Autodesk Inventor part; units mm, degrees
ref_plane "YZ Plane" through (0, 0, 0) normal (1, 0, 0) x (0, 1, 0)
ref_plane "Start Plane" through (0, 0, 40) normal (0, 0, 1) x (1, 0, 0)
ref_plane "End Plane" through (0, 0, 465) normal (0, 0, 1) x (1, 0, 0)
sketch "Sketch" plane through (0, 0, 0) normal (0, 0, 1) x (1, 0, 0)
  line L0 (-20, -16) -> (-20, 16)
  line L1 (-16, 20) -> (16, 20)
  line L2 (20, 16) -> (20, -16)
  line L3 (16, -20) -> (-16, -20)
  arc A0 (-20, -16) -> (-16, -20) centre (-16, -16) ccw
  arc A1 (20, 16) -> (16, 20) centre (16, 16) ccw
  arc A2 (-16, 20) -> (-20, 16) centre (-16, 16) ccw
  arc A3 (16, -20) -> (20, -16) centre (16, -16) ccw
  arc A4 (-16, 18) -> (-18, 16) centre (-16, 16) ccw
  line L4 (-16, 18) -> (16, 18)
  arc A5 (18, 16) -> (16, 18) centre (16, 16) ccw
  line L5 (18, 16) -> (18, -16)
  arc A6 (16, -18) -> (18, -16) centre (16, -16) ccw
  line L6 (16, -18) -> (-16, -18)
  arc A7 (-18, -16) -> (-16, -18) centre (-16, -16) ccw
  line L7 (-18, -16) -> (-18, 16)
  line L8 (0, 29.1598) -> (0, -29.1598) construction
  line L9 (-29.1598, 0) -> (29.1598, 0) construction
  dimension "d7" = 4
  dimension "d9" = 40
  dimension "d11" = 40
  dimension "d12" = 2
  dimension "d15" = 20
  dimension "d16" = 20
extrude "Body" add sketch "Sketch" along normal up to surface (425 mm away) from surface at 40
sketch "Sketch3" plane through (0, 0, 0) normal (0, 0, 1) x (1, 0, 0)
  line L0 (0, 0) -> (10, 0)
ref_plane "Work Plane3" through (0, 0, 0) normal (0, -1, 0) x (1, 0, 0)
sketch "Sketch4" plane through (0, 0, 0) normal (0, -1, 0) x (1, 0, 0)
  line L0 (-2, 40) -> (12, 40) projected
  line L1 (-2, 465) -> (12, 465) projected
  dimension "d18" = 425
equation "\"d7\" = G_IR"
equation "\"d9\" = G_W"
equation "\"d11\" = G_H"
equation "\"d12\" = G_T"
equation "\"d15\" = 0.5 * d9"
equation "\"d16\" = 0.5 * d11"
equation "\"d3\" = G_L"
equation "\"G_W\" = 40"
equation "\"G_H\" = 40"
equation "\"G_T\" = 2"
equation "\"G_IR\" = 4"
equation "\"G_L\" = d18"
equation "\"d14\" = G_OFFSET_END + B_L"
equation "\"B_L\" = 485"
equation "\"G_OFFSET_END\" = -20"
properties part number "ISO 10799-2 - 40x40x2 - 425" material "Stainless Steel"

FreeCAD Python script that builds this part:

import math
import FreeCAD as App
import Part
import Sketcher
from FreeCAD import Vector

doc = App.newDocument("Part")
params = doc.addObject("Spreadsheet::Sheet", "Params")
for row, (alias, value) in enumerate([
    ("sketch1_radius", "4 mm"),
    ("sketch1_radius2", "2 mm"),
    ("pad1_length", "425 mm"),
], start=1):
    params.set(f"A{row}", alias)
    params.set(f"B{row}", "=" + value)
    params.setAlias(f"B{row}", alias)

body = doc.addObject("PartDesign::Body", "Body")

sketch1 = body.newObject("Sketcher::SketchObject", "Sketch")
sketch1.AttachmentSupport = (doc.getObject("XY_Plane"), [""])
sketch1.MapMode = "FlatFace"
sketch1.AttachmentOffset = App.Placement(Vector(0, 0, 40), App.Rotation())
sketch1.addGeometry([
    Part.LineSegment(Vector(-20, 16, 0), Vector(-20, -16, 0)),
    Part.ArcOfCircle(Part.Circle(Vector(-16, -16, 0), Vector(0, 0, 1), 4), math.radians(180), math.radians(270)),
    Part.LineSegment(Vector(-16, -20, 0), Vector(16, -20, 0)),
    Part.ArcOfCircle(Part.Circle(Vector(16, -16, 0), Vector(0, 0, 1), 4), math.radians(-90), math.radians(0)),
    Part.LineSegment(Vector(20, -16, 0), Vector(20, 16, 0)),
    Part.ArcOfCircle(Part.Circle(Vector(16, 16, 0), Vector(0, 0, 1), 4), math.radians(0), math.radians(90)),
    Part.LineSegment(Vector(16, 20, 0), Vector(-16, 20, 0)),
    Part.ArcOfCircle(Part.Circle(Vector(-16, 16, 0), Vector(0, 0, 1), 4), math.radians(90), math.radians(180)),
    Part.ArcOfCircle(Part.Circle(Vector(-16, 16, 0), Vector(0, 0, 1), 2), math.radians(90), math.radians(180)),
    Part.LineSegment(Vector(-16, 18, 0), Vector(16, 18, 0)),
    Part.ArcOfCircle(Part.Circle(Vector(16, 16, 0), Vector(0, 0, 1), 2), math.radians(0), math.radians(90)),
    Part.LineSegment(Vector(18, 16, 0), Vector(18, -16, 0)),
    Part.ArcOfCircle(Part.Circle(Vector(16, -16, 0), Vector(0, 0, 1), 2), math.radians(-90), math.radians(0)),
    Part.LineSegment(Vector(16, -18, 0), Vector(-16, -18, 0)),
    Part.ArcOfCircle(Part.Circle(Vector(-16, -16, 0), Vector(0, 0, 1), 2), math.radians(180), math.radians(270)),
    Part.LineSegment(Vector(-18, -16, 0), Vector(-18, 16, 0)),
], False)
sketch1.addConstraint([
    Sketcher.Constraint("Tangent", 0, 2, 1, 1),
    Sketcher.Constraint("Tangent", 1, 2, 2, 1),
    Sketcher.Constraint("Tangent", 2, 2, 3, 1),
    Sketcher.Constraint("Tangent", 3, 2, 4, 1),
    Sketcher.Constraint("Tangent", 4, 2, 5, 1),
    Sketcher.Constraint("Tangent", 5, 2, 6, 1),
    Sketcher.Constraint("Tangent", 6, 2, 7, 1),
    Sketcher.Constraint("Tangent", 7, 2, 0, 1),
    Sketcher.Constraint("Tangent", 8, 1, 9, 1),
    Sketcher.Constraint("Tangent", 9, 2, 10, 2),
    Sketcher.Constraint("Tangent", 10, 1, 11, 1),
    Sketcher.Constraint("Tangent", 11, 2, 12, 2),
    Sketcher.Constraint("Tangent", 12, 1, 13, 1),
    Sketcher.Constraint("Tangent", 13, 2, 14, 2),
    Sketcher.Constraint("Tangent", 14, 1, 15, 1),
    Sketcher.Constraint("Tangent", 15, 2, 8, 2),
    Sketcher.Constraint("Vertical", 0),
    Sketcher.Constraint("Horizontal", 2),
    Sketcher.Constraint("Vertical", 4),
    Sketcher.Constraint("Horizontal", 6),
    Sketcher.Constraint("Horizontal", 9),
    Sketcher.Constraint("Vertical", 11),
    Sketcher.Constraint("Horizontal", 13),
    Sketcher.Constraint("Vertical", 15),
    Sketcher.Constraint("Coincident", 8, 3, 7, 3),
    Sketcher.Constraint("Coincident", 10, 3, 5, 3),
    Sketcher.Constraint("Coincident", 12, 3, 3, 3),
    Sketcher.Constraint("Equal", 1, 3),
    Sketcher.Constraint("Equal", 3, 5),
    Sketcher.Constraint("Equal", 5, 7),
    Sketcher.Constraint("Equal", 12, 14),
    Sketcher.Constraint("Symmetric", 1, 3, 5, 3, -1, 1),
    Sketcher.Constraint("Equal", 13, 0),
    Sketcher.Constraint("Radius", 1, 4.0),
    Sketcher.Constraint("Radius", 8, 2.0),
    Sketcher.Constraint("DistanceX", 0, 2, -1, 1, 20.0),
])
sketch1.setExpression("Constraints[33]", "Params.sketch1_radius")
sketch1.setExpression("Constraints[34]", "Params.sketch1_radius2")
pad1 = body.newObject("PartDesign::Pad", "Pad")
pad1.Profile = sketch1
pad1.setExpression("Length", "Params.pad1_length")

doc.recompute()
